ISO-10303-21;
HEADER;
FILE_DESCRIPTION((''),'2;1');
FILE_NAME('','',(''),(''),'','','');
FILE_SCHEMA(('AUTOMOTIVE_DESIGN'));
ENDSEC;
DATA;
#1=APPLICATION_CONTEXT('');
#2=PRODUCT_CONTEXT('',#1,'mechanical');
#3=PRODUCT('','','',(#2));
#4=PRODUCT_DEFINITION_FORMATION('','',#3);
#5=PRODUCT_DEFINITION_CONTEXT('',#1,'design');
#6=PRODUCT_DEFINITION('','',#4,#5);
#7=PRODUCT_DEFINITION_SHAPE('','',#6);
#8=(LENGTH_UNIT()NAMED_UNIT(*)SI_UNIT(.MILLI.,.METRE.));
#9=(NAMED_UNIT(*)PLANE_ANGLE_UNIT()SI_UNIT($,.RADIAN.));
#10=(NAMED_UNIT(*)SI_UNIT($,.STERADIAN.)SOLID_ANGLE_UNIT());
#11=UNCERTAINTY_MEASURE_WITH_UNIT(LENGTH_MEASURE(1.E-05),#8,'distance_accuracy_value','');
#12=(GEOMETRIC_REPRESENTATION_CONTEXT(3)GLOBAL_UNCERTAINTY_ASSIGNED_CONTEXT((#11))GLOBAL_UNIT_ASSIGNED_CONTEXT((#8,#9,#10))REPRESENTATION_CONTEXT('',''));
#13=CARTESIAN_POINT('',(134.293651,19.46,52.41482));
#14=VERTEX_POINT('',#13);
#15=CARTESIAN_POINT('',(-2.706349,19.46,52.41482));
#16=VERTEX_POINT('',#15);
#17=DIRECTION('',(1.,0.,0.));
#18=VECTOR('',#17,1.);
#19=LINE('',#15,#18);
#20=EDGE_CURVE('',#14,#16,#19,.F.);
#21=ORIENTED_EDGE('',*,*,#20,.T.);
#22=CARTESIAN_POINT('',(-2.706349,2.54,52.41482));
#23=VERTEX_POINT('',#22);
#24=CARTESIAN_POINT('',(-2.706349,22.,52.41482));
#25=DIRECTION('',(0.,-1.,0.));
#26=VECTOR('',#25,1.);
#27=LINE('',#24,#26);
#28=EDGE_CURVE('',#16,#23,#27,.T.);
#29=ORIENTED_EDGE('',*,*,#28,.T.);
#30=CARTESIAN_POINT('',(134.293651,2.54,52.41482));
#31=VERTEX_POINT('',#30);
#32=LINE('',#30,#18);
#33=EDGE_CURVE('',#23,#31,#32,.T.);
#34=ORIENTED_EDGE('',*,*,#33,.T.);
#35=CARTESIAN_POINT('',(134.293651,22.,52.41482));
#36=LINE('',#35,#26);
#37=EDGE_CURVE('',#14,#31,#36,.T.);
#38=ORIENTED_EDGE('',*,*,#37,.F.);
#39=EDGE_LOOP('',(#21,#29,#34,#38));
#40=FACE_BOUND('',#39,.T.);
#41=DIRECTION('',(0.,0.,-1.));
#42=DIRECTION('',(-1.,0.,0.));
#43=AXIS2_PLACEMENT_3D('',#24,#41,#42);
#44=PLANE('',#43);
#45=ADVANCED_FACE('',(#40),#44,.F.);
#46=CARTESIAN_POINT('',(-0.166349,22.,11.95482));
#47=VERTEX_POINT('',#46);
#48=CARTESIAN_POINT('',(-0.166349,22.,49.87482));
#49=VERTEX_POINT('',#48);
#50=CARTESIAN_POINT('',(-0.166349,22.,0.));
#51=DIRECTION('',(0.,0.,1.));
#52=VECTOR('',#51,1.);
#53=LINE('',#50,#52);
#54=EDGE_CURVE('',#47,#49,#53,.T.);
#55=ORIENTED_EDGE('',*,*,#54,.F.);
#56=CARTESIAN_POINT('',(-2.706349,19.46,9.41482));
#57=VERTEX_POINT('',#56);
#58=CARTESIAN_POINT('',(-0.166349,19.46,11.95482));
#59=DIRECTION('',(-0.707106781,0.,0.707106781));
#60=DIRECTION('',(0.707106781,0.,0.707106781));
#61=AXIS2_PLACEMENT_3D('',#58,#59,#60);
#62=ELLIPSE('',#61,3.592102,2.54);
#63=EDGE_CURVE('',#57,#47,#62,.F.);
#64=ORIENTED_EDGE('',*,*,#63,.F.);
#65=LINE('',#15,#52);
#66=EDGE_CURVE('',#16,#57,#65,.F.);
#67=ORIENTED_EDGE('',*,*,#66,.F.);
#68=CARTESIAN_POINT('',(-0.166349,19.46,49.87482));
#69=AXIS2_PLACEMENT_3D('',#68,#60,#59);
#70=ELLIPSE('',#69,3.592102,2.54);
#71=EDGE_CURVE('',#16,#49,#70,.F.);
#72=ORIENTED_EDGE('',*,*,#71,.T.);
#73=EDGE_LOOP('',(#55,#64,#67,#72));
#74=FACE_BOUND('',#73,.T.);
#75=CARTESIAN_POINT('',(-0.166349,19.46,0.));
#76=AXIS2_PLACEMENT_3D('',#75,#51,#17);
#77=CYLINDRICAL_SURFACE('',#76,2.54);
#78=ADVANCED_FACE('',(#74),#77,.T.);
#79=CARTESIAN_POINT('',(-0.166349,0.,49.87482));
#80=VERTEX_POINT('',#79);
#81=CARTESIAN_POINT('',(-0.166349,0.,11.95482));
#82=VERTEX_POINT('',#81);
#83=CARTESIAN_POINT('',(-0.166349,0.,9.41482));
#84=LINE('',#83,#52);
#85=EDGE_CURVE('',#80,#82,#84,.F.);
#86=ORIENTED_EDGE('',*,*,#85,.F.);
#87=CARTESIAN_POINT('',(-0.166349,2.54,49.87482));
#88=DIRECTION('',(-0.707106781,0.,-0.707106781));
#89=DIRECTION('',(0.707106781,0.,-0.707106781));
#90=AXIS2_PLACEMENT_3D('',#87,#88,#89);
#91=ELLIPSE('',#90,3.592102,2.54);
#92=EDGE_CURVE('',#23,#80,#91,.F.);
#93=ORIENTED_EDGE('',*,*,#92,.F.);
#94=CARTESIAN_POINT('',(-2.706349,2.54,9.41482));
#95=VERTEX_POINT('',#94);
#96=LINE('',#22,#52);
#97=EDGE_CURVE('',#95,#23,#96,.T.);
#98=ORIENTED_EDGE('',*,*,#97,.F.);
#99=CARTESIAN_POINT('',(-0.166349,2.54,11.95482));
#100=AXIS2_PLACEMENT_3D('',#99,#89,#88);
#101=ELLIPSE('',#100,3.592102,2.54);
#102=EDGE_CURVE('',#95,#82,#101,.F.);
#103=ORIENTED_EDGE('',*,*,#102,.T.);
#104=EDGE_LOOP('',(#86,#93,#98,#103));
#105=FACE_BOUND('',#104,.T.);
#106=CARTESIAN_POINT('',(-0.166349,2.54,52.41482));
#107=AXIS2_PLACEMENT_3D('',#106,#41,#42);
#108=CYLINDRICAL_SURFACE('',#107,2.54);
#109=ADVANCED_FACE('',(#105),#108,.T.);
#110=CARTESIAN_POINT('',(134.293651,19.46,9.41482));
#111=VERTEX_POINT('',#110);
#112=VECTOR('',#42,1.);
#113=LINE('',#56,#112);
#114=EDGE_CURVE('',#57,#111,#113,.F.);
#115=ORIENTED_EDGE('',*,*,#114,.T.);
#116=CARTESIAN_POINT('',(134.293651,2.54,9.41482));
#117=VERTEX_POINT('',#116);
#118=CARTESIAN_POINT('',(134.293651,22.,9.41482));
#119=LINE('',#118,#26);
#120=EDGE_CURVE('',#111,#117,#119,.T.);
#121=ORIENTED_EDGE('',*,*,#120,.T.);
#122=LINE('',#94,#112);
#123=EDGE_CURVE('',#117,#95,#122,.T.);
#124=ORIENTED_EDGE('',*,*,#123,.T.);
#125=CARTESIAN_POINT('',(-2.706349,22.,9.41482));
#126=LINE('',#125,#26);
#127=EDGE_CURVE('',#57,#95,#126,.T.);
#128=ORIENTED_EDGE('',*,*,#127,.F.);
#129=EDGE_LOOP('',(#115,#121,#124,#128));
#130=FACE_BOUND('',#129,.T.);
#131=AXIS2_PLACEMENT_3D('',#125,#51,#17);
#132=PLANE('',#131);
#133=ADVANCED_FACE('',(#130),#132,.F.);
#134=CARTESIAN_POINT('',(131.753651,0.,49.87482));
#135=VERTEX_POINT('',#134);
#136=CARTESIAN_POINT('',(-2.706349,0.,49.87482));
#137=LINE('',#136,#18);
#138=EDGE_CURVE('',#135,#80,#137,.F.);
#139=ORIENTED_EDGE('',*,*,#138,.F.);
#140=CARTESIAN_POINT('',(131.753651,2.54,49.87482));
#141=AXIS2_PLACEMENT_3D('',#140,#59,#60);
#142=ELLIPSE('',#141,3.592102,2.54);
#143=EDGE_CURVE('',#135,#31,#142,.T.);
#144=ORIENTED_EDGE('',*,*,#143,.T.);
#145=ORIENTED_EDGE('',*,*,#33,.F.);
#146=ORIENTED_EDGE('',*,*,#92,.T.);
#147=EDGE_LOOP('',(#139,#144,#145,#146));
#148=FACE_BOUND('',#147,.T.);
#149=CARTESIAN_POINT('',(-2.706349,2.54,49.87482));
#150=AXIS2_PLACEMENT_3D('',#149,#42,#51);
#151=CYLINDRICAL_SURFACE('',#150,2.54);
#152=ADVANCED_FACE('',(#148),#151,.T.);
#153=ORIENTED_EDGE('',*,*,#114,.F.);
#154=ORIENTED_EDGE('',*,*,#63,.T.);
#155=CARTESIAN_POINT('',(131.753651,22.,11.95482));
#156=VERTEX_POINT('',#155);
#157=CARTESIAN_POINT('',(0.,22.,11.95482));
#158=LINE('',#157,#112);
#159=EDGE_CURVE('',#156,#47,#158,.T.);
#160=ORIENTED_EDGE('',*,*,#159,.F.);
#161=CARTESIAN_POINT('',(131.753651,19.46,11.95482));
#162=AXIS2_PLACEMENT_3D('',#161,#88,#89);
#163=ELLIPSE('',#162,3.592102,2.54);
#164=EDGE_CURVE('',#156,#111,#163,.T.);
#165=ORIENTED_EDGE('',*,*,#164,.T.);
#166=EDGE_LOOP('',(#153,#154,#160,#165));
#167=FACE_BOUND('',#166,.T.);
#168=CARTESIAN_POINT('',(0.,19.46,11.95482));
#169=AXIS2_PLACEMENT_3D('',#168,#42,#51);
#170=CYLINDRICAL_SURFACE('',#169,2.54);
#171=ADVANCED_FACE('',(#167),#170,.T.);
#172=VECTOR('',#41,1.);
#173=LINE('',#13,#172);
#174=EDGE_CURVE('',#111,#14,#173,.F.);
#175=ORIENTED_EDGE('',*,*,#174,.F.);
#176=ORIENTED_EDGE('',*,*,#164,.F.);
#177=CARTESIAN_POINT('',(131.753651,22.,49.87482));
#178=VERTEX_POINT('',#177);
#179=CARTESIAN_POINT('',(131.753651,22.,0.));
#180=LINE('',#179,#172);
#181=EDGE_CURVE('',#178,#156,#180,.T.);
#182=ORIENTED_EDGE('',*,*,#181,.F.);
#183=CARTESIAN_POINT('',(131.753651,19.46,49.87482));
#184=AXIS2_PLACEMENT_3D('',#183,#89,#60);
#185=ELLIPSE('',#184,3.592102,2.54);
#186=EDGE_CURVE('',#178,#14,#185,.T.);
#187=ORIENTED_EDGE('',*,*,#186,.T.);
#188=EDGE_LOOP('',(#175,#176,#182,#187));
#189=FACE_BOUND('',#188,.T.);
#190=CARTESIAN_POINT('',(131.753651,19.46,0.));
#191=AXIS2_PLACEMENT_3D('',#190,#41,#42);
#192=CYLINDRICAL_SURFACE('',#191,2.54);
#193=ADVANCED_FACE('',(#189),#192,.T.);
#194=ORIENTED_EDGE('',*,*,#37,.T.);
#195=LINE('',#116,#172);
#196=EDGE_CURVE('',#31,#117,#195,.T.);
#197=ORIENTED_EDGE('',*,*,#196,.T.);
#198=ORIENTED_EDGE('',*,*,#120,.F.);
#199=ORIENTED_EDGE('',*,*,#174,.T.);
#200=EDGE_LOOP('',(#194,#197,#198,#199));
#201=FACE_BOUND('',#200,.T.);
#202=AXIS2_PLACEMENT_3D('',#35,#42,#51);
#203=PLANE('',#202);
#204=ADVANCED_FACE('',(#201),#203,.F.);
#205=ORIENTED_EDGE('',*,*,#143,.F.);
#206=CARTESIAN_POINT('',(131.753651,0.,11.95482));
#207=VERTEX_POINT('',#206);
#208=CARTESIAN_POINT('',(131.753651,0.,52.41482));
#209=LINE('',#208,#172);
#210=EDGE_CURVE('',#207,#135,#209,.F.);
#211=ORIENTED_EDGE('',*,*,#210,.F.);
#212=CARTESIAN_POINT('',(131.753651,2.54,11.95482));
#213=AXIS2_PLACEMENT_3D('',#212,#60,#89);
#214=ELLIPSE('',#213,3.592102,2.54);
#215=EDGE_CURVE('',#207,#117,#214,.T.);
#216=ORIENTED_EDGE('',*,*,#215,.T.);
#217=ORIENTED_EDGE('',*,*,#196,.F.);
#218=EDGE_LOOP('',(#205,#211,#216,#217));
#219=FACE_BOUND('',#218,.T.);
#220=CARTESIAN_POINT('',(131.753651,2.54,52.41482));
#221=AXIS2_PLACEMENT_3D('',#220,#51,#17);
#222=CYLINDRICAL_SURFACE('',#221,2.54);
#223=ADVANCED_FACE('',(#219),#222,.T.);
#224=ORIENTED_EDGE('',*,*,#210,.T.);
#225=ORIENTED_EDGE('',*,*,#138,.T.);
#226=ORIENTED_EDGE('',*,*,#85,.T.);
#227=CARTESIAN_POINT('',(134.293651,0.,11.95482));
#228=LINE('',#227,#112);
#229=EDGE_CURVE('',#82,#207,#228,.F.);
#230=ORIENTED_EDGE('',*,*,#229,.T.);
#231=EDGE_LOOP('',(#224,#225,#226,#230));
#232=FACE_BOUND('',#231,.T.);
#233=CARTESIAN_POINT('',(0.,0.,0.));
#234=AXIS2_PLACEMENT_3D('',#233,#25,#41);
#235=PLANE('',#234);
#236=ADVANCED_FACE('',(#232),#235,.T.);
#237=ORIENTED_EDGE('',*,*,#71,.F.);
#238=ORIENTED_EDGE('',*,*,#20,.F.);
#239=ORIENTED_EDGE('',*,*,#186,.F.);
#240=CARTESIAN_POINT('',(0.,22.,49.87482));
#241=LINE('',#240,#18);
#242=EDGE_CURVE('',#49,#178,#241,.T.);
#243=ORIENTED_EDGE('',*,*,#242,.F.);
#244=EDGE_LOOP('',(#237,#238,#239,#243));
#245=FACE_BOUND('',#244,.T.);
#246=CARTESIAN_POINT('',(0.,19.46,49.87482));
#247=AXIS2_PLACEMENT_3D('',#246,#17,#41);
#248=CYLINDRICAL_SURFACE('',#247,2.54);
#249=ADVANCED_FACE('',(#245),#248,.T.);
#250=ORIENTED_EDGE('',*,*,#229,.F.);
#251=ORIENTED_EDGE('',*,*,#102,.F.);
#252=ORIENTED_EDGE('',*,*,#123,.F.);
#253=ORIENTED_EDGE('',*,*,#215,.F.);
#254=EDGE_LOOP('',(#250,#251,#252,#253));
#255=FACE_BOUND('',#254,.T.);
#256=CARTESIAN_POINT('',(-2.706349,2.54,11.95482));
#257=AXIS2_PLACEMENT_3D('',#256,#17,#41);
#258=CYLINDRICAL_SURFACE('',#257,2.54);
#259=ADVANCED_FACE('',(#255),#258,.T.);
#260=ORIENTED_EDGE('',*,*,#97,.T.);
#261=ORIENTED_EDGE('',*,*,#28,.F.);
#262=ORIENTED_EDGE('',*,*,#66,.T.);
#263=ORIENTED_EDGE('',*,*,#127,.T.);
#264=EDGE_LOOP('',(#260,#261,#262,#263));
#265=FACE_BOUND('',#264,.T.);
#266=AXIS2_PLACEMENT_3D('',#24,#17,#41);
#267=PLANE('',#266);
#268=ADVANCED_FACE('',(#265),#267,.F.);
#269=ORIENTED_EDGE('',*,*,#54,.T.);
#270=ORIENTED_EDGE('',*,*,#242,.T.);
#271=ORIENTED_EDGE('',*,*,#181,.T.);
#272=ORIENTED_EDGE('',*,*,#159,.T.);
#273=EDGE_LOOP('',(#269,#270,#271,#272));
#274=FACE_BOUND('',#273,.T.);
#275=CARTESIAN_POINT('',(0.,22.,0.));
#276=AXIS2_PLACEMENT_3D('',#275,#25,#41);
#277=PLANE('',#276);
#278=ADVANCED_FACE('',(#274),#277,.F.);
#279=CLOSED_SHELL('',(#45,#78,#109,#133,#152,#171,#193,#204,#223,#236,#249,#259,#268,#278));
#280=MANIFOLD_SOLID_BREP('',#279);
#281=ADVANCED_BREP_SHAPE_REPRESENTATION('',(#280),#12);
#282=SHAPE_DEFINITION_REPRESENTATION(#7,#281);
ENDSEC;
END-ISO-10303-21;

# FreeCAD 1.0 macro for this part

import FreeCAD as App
import Part
import Sketcher
from FreeCAD import Vector
Q = App.Units.Quantity


def edges_at(feature, points):
    """Names of the edges that pass closest to the given points."""
    edges = feature.Shape.Edges
    near = lambda p: min(range(len(edges)), key=lambda i: edges[i].distToShape(Part.Vertex(*p))[0])
    return sorted({f"Edge{near(p) + 1}" for p in points})

doc = App.newDocument("Part")
body = doc.addObject("PartDesign::Body", "Body")

# Sketch on XZ plane
sketch1 = body.newObject("Sketcher::SketchObject", "Sketch")
sketch1.AttachmentSupport = (doc.getObject("XZ_Plane"), [""])
sketch1.MapMode = "FlatFace"
sketch1.addGeometry([
    Part.LineSegment(Vector(-2.706349, 9.41482, 0), Vector(-2.706349, 52.41482, 0)),
    Part.LineSegment(Vector(-2.706349, 52.41482, 0), Vector(134.293651, 52.41482, 0)),
    Part.LineSegment(Vector(134.293651, 52.41482, 0), Vector(134.293651, 9.41482, 0)),
    Part.LineSegment(Vector(134.293651, 9.41482, 0), Vector(-2.706349, 9.41482, 0)),
], False)
sketch1.addConstraint([
    Sketcher.Constraint("Coincident", 0, 2, 1, 1),
    Sketcher.Constraint("Coincident", 1, 2, 2, 1),
    Sketcher.Constraint("Coincident", 2, 2, 3, 1),
    Sketcher.Constraint("Coincident", 3, 2, 0, 1),
    Sketcher.Constraint("Vertical", 0),
    Sketcher.Constraint("Horizontal", 1),
    Sketcher.Constraint("Vertical", 2),
    Sketcher.Constraint("Horizontal", 3),
    Sketcher.Constraint("DistanceX", 1, 1, 1, 2, Q("137 mm")),
    Sketcher.Constraint("DistanceY", 0, 1, 0, 2, Q("43 mm")),
    Sketcher.Constraint("DistanceX", 0, 2, -1, 1, Q("2.706349 mm")),
    Sketcher.Constraint("DistanceY", -1, 1, 0, 2, Q("52.41482 mm")),
])
pad1 = body.newObject("PartDesign::Pad", "Pad")
pad1.Profile = sketch1
pad1.Length = 22
pad1.Reversed = True
doc.recompute()

fillet = body.newObject("PartDesign::Fillet", "Fillet")
fillet.Base = (pad1, edges_at(pad1, [
    (134.294, 22, 30.915),
    (65.794, 22, 9.415),
    (-2.706, 22, 30.915),
    (65.794, 0, 9.415),
    (134.294, 0, 30.915),
    (65.794, 0, 52.415),
    (-2.706, 0, 30.915),
    (65.794, 22, 52.415),
]))
fillet.Radius = 2.54

doc.recompute()
